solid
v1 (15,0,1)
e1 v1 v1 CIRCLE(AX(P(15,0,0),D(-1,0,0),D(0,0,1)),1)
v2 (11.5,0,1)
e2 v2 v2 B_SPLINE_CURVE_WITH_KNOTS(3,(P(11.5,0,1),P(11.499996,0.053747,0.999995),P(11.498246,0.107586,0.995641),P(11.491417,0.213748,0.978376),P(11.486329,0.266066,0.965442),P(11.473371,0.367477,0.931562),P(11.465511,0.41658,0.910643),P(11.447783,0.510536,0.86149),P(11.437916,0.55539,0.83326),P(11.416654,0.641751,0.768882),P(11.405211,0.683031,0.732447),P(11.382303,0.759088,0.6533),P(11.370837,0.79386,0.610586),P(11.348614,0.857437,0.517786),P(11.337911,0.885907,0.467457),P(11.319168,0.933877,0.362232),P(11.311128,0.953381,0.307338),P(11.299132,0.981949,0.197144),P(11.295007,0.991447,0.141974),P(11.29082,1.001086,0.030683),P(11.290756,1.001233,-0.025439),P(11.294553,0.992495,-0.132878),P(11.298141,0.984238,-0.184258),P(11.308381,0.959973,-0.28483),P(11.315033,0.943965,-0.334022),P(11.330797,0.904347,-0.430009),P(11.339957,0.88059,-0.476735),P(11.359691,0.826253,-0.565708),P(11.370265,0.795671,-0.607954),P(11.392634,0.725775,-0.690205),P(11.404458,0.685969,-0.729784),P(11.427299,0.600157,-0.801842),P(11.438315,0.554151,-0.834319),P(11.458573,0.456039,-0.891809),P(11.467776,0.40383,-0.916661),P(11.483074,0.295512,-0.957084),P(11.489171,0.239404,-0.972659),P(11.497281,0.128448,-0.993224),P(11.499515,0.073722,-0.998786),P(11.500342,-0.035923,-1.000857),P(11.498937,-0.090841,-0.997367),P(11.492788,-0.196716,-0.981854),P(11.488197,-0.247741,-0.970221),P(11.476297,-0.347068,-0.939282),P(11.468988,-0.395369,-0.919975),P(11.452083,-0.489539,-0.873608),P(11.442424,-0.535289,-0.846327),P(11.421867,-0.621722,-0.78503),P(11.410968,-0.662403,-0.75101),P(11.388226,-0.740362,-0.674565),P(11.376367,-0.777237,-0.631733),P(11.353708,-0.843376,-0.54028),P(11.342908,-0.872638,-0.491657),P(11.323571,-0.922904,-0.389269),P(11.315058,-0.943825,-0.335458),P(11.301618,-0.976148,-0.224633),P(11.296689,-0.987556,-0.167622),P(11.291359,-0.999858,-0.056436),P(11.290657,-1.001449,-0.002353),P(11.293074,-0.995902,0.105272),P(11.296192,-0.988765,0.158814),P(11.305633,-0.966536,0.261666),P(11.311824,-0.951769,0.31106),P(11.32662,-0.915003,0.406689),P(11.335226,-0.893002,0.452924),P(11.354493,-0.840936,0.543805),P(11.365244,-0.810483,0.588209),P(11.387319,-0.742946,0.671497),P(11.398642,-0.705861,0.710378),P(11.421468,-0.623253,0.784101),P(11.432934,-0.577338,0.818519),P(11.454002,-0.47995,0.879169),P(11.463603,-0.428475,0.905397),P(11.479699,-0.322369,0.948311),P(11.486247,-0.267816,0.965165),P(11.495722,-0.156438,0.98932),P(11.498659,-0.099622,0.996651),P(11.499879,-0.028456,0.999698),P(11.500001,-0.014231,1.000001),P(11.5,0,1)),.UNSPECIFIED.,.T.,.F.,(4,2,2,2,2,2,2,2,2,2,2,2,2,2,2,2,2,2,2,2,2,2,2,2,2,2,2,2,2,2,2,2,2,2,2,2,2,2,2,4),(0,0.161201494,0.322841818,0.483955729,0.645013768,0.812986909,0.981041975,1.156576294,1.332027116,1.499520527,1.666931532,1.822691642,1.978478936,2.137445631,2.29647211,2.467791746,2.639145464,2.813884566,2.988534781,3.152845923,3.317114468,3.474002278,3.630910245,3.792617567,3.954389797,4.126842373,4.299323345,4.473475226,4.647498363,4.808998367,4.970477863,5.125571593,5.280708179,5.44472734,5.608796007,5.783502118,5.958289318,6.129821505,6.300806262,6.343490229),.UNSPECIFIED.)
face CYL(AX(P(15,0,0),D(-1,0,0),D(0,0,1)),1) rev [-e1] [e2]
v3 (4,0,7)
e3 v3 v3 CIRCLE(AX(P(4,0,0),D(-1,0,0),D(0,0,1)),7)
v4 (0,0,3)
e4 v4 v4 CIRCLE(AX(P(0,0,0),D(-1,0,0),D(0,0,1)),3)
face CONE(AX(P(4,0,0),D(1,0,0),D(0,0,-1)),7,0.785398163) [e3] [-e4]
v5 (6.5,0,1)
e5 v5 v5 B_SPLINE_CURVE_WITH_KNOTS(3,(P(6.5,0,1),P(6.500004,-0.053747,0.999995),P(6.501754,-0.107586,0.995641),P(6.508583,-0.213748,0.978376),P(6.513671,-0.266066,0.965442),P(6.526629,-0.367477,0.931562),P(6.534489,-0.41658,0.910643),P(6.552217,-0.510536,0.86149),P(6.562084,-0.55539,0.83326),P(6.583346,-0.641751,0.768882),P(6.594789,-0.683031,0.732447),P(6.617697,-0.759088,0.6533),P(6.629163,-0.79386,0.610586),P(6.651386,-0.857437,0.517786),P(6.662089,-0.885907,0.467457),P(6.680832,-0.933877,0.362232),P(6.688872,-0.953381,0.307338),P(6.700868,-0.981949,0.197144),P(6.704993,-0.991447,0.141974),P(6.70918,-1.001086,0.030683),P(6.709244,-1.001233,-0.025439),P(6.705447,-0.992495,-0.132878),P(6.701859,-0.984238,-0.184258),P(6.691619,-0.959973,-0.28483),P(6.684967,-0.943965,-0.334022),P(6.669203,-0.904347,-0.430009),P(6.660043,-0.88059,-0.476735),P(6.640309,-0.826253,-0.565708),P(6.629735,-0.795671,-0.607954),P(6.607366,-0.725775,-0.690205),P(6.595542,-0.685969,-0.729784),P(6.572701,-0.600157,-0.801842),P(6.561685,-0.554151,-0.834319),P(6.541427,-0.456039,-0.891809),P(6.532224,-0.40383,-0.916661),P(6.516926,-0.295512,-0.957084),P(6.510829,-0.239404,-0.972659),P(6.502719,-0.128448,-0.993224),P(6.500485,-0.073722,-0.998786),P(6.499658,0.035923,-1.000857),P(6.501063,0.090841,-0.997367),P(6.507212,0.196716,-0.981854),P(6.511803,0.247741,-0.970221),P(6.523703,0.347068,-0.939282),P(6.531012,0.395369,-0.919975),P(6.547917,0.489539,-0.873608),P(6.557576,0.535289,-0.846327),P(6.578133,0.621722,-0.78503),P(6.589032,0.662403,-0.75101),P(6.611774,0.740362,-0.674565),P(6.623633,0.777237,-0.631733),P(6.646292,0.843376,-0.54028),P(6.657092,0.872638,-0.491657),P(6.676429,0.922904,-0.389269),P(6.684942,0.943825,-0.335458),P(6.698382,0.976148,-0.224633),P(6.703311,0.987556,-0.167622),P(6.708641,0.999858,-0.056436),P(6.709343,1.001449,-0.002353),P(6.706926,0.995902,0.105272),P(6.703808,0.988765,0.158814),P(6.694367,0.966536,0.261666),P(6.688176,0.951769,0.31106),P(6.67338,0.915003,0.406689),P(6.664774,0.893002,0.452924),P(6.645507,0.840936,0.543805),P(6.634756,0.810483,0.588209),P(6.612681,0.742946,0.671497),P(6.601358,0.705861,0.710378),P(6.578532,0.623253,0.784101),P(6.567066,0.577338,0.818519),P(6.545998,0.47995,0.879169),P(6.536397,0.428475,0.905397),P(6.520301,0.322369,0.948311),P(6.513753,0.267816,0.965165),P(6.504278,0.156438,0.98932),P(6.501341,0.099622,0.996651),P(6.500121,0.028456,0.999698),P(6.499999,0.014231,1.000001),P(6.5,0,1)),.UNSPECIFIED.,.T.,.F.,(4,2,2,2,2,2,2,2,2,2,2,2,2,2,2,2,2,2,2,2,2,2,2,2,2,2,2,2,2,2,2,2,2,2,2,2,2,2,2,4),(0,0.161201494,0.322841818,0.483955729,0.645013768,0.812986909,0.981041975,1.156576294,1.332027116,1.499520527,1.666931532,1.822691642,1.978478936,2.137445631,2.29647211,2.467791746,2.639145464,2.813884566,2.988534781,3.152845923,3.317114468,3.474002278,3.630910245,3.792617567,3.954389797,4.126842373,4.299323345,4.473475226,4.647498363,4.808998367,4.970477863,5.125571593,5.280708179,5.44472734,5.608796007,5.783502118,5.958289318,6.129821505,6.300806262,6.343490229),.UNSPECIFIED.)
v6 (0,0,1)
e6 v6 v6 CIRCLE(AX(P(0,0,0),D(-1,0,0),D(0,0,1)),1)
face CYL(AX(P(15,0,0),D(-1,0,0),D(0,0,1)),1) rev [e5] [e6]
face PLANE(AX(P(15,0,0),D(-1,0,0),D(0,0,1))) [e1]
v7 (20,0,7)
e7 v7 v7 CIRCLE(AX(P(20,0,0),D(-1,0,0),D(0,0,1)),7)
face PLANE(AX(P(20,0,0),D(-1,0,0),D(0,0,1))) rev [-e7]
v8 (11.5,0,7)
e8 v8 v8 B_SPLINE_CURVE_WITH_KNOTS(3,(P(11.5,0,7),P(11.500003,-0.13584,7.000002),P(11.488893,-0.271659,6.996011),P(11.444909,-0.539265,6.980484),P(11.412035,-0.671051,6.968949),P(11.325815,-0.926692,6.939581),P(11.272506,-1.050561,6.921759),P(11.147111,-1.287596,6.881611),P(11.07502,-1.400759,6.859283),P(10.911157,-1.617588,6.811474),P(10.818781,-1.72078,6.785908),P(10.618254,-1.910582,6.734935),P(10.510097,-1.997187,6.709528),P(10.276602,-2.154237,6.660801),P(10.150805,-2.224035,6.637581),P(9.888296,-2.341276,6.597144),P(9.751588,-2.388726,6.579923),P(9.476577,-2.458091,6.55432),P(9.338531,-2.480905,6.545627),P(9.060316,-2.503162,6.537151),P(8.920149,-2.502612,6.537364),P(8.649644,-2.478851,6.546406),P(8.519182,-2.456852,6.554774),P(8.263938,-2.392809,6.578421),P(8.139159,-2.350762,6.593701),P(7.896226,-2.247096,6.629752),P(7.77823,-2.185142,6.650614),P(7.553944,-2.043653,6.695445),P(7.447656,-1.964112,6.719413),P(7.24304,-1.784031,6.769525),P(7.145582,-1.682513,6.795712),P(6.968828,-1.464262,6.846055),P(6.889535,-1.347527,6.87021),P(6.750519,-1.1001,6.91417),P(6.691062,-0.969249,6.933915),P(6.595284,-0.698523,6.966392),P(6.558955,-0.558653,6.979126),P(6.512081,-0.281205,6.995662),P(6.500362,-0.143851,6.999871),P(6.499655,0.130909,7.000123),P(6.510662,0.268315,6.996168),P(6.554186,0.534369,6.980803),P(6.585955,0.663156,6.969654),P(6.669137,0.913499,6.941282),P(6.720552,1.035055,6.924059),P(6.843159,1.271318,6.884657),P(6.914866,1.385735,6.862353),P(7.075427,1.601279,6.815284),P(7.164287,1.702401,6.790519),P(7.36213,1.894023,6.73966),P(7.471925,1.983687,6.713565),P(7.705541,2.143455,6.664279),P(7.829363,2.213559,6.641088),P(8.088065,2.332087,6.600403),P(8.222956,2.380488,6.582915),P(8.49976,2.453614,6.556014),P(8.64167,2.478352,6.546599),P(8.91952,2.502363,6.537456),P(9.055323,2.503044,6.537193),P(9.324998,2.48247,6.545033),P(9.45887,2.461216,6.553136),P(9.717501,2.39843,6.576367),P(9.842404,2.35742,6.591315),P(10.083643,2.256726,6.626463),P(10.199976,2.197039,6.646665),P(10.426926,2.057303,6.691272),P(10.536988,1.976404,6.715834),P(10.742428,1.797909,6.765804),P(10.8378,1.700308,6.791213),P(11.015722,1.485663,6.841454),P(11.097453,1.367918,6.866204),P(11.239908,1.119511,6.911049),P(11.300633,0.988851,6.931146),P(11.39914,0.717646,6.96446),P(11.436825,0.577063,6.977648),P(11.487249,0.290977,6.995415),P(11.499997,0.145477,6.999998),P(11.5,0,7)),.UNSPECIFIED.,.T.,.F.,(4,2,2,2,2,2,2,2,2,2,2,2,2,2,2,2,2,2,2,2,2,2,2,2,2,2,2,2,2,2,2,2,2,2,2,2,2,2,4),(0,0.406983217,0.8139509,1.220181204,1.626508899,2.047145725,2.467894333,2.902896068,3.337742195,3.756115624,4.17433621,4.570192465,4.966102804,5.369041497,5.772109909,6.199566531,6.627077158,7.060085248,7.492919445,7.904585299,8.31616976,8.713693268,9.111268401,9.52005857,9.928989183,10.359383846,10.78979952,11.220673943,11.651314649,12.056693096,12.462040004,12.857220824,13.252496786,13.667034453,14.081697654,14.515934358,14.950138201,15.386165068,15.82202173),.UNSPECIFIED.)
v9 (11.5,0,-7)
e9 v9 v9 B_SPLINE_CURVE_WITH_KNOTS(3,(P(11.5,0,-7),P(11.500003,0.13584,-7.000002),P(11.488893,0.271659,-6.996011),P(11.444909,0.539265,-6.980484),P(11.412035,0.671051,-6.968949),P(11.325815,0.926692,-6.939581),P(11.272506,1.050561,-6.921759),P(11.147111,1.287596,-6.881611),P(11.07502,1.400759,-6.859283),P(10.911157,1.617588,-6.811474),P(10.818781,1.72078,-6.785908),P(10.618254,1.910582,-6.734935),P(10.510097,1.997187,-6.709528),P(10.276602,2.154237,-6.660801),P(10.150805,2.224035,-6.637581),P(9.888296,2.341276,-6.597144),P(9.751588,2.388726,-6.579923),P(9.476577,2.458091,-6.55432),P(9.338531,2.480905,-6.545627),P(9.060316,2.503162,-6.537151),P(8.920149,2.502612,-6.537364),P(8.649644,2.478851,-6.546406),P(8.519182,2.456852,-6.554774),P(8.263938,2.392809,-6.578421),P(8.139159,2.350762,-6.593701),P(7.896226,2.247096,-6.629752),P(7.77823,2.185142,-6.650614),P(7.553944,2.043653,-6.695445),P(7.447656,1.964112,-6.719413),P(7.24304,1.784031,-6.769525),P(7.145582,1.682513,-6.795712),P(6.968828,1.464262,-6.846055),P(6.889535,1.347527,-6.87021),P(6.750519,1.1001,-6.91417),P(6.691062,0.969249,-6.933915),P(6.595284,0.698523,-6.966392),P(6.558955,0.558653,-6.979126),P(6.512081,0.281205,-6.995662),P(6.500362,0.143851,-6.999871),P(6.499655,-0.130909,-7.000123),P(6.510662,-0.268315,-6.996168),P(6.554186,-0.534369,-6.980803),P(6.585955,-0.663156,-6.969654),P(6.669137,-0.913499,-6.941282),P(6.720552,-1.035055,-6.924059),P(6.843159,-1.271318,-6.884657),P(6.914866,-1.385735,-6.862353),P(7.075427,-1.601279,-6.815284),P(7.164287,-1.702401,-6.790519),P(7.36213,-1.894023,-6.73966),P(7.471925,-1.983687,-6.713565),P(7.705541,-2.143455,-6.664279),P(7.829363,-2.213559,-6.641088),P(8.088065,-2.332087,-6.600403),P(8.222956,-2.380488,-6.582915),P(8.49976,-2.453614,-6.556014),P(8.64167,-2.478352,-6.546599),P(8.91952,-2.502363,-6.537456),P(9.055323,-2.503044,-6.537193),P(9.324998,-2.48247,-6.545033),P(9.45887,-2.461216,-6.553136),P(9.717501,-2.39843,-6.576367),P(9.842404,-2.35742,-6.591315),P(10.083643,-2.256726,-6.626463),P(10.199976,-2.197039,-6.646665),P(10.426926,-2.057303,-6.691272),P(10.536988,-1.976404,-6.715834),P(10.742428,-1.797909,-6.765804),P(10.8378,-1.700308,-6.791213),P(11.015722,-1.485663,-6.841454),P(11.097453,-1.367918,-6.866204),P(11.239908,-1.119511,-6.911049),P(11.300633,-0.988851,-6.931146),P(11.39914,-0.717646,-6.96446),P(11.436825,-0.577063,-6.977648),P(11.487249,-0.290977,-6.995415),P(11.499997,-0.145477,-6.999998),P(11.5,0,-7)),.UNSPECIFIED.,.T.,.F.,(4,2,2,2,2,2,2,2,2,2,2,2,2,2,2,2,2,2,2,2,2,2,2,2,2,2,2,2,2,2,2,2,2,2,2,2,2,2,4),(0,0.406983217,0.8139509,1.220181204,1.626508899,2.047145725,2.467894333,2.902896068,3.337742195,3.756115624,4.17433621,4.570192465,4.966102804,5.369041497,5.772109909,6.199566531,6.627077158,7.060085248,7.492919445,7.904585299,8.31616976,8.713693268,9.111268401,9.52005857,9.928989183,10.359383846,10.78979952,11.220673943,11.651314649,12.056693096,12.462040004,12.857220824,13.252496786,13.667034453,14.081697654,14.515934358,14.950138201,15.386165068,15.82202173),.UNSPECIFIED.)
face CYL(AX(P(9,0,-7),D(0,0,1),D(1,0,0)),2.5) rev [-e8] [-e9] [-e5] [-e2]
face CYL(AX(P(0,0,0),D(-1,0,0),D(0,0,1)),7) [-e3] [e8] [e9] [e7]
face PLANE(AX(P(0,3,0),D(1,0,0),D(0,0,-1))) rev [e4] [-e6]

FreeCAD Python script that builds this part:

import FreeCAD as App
import Part
import Sketcher
Q = App.Units.Quantity

doc = App.newDocument("Part")
params = doc.addObject("Spreadsheet::Sheet", "Params")
for row, (alias, value) in enumerate([
    ("sketch1_width", "20 mm"),
    ("sketch1_width2", "16 mm"),
    ("sketch1_height", "3 mm"),
    ("sketch1_height2", "7 mm"),
    ("revolution_angle", "360 deg"),
    ("sketch2_diameter", "2 mm"),
    ("pocket1_length", "15 mm"),
    ("sketch3_diameter", "5 mm"),
], start=1):
    params.set(f"A{row}", alias)
    params.set(f"B{row}", "=" + value)
    params.setAlias(f"B{row}", alias)

body = doc.addObject("PartDesign::Body", "Body")

sketch1 = doc.addObject("Sketcher::SketchObject", "Sketch")
body.addObject(sketch1)
sketch1.AttachmentSupport = (doc.XY_Plane, [""])
sketch1.MapMode = "FlatFace"
sketch1.addGeometry([
    Part.LineSegment(App.Vector(0, 3, 0), App.Vector(0, 0, 0)),
    Part.LineSegment(App.Vector(0, 0, 0), App.Vector(20, 0, 0)),
    Part.LineSegment(App.Vector(20, 0, 0), App.Vector(20, 7, 0)),
    Part.LineSegment(App.Vector(20, 7, 0), App.Vector(4, 7, 0)),
    Part.LineSegment(App.Vector(4, 7, 0), App.Vector(0, 3, 0)),
], False)
sketch1.addConstraint([
    Sketcher.Constraint("Coincident", 0, 2, 1, 1),
    Sketcher.Constraint("Coincident", 1, 2, 2, 1),
    Sketcher.Constraint("Coincident", 2, 2, 3, 1),
    Sketcher.Constraint("Coincident", 3, 2, 4, 1),
    Sketcher.Constraint("Coincident", 4, 2, 0, 1),
    Sketcher.Constraint("Vertical", 0),
    Sketcher.Constraint("Horizontal", 1),
    Sketcher.Constraint("Vertical", 2),
    Sketcher.Constraint("Horizontal", 3),
    Sketcher.Constraint("Coincident", 0, 2, -1, 1),
    Sketcher.Constraint("DistanceX", 1, 1, 1, 2, Q("20 mm")),
    Sketcher.Constraint("DistanceX", 3, 2, 3, 1, Q("16 mm")),
    Sketcher.Constraint("DistanceY", 0, 2, 0, 1, Q("3 mm")),
    Sketcher.Constraint("DistanceY", 2, 1, 2, 2, Q("7 mm")),
])
sketch1.setExpression("Constraints[10]", "Params.sketch1_width")
sketch1.setExpression("Constraints[11]", "Params.sketch1_width2")
sketch1.setExpression("Constraints[12]", "Params.sketch1_height")
sketch1.setExpression("Constraints[13]", "Params.sketch1_height2")
revolution = doc.addObject("PartDesign::Revolution", "Revolution")
body.addObject(revolution)
revolution.Profile = sketch1
revolution.ReferenceAxis = (sketch1, ["H_Axis"])
revolution.setExpression("Angle", "Params.revolution_angle")

sketch2 = doc.addObject("Sketcher::SketchObject", "Sketch001")
body.addObject(sketch2)
sketch2.AttachmentSupport = (doc.YZ_Plane, [""])
sketch2.MapMode = "FlatFace"
sketch2.addGeometry(Part.Circle(App.Vector(0, 0, 0), App.Vector(0, 0, 1), 1), False)
sketch2.addConstraint([
    Sketcher.Constraint("Coincident", 0, 3, -1, 1),
    Sketcher.Constraint("Diameter", 0, Q("2 mm")),
])
sketch2.setExpression("Constraints[1]", "Params.sketch2_diameter")
pocket1 = doc.addObject("PartDesign::Pocket", "Pocket")
body.addObject(pocket1)
pocket1.Profile = sketch2
pocket1.setExpression("Length", "Params.pocket1_length")
pocket1.Reversed = True

sketch3 = doc.addObject("Sketcher::SketchObject", "Sketch002")
body.addObject(sketch3)
sketch3.AttachmentSupport = (doc.XY_Plane, [""])
sketch3.MapMode = "FlatFace"
sketch3.AttachmentOffset = App.Placement(App.Vector(0, 0, 7), App.Rotation())
sketch3.addGeometry(Part.Circle(App.Vector(9, 0, 0), App.Vector(0, 0, 1), 2.5), False)
sketch3.addConstraint([
    Sketcher.Constraint("PointOnObject", 0, 3, -1),
    Sketcher.Constraint("Diameter", 0, Q("5 mm")),
    Sketcher.Constraint("DistanceX", -1, 1, 0, 3, Q("9 mm")),
])
sketch3.setExpression("Constraints[1]", "Params.sketch3_diameter")
pocket2 = doc.addObject("PartDesign::Pocket", "Pocket001")
body.addObject(pocket2)
pocket2.Profile = sketch3
pocket2.Type = "ThroughAll"
pocket2.Midplane = True

doc.recompute()
